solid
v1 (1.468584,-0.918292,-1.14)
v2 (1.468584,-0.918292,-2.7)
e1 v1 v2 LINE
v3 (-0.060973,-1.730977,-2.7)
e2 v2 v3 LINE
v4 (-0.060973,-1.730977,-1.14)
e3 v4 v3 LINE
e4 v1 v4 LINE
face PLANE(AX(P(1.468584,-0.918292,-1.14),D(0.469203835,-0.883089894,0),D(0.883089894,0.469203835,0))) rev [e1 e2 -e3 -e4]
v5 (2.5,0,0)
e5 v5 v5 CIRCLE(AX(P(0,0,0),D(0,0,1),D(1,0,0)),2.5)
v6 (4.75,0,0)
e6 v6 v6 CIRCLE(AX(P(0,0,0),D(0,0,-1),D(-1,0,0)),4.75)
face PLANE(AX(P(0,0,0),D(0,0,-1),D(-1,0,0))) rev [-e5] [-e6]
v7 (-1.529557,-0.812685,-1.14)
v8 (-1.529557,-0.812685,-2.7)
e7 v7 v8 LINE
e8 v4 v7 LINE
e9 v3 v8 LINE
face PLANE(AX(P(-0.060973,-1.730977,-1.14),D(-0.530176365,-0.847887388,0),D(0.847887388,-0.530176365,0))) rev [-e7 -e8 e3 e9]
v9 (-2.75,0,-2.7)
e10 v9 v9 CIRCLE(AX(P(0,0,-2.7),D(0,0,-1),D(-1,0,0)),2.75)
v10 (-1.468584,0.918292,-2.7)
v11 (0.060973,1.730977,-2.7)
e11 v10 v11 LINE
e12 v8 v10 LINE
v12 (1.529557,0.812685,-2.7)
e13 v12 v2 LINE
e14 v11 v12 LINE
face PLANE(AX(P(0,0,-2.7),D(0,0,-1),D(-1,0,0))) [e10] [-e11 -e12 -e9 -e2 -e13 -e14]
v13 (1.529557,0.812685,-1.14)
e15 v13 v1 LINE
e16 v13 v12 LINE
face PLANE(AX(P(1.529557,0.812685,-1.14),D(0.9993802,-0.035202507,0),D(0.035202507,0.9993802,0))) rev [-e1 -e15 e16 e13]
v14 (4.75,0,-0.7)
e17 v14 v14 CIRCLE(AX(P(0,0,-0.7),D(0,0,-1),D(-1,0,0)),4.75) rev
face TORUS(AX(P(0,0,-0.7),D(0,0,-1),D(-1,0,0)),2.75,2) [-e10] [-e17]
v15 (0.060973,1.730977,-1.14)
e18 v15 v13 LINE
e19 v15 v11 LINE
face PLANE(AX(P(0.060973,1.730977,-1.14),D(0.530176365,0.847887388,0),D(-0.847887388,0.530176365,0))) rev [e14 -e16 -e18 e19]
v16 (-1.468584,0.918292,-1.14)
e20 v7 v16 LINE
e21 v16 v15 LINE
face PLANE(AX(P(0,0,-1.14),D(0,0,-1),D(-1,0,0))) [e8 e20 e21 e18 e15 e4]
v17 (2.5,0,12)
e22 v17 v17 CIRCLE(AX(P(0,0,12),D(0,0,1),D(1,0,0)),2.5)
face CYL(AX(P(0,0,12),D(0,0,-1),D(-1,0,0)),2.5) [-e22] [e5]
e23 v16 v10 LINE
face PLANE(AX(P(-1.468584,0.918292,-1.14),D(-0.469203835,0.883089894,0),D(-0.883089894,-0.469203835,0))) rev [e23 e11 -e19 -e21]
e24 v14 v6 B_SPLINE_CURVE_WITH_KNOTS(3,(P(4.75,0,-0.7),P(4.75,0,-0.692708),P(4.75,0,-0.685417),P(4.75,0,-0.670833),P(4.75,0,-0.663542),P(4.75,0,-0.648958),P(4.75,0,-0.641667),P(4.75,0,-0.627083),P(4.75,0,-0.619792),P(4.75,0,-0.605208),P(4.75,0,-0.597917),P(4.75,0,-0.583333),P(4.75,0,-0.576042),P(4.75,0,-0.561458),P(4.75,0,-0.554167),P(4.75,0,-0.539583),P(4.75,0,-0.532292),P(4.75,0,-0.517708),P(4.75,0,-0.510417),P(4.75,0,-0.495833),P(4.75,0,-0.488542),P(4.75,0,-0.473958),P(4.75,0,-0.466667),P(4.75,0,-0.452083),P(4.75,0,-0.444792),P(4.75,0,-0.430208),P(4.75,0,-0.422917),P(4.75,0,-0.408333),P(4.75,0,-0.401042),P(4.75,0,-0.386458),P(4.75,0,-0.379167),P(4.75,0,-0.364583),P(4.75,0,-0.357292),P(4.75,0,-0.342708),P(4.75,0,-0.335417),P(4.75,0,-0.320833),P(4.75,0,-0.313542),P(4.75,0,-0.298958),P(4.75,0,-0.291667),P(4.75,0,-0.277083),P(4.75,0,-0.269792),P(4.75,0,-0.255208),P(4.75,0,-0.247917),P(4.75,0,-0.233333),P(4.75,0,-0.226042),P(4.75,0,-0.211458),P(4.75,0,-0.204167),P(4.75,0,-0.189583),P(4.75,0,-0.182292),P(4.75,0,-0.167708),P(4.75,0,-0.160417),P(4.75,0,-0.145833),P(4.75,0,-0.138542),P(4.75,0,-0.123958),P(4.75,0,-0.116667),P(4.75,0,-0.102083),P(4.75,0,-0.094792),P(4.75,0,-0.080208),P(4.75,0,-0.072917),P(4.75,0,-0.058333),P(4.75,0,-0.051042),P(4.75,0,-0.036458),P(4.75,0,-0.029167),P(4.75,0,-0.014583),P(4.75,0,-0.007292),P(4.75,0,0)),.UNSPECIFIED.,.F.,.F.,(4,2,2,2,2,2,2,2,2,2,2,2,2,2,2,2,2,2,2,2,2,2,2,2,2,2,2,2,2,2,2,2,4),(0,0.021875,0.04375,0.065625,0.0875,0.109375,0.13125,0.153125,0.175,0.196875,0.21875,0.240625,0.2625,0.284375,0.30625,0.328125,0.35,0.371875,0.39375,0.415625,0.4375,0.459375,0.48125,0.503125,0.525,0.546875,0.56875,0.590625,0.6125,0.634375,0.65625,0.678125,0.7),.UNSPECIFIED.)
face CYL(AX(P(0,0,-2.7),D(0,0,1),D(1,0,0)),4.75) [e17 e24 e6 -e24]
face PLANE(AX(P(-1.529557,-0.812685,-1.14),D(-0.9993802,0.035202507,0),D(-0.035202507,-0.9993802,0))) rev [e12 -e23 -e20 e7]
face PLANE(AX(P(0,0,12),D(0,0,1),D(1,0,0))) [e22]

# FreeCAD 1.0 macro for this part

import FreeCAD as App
import Part
import Sketcher
Q = App.Units.Quantity


def edges_at(feature, points):
    """Names of the edges that pass closest to the given points."""
    edges = feature.Shape.Edges
    near = lambda p: min(range(len(edges)), key=lambda i: edges[i].distToShape(Part.Vertex(*p))[0])
    return sorted({f"Edge{near(p) + 1}" for p in points})


def add_polygon(sketch, points):
    """Adds a closed chain of lines whose ends are joined by coincident constraints."""
    first, n = sketch.GeometryCount, len(points)
    for a, b in zip(points, points[1:] + points[:1]):
        sketch.addGeometry(Part.LineSegment(App.Vector(*a, 0), App.Vector(*b, 0)), False)
    for i in range(n):
        sketch.addConstraint(Sketcher.Constraint("Coincident", first + i, 2, first + (i + 1) % n, 1))

doc = App.newDocument("Part")
body = doc.addObject("PartDesign::Body", "Body")

sketch1 = body.newObject("Sketcher::SketchObject", "Sketch")
sketch1.AttachmentSupport = (doc.getObject("XY_Plane"), [""])
sketch1.MapMode = "FlatFace"
sketch1.addGeometry(Part.Circle(App.Vector(0, 0, 0), App.Vector(0, 0, 1), 2.5), False)
sketch1.addConstraint([
    Sketcher.Constraint("Coincident", 0, 3, -1, 1),
    Sketcher.Constraint("Diameter", 0, Q("5 mm")),
])
pad1 = body.newObject("PartDesign::Pad", "Pad")
pad1.Profile = sketch1
pad1.Length = 12

sketch2 = body.newObject("Sketcher::SketchObject", "Sketch001")
sketch2.AttachmentSupport = (doc.getObject("XY_Plane"), [""])
sketch2.MapMode = "FlatFace"
sketch2.addGeometry(Part.Circle(App.Vector(0, 0, 0), App.Vector(0, 0, 1), 4.8), False)
sketch2.addConstraint([
    Sketcher.Constraint("Coincident", 0, 3, -1, 1),
    Sketcher.Constraint("Diameter", 0, Q("9.5 mm")),
])
pad2 = body.newObject("PartDesign::Pad", "Pad001")
pad2.Profile = sketch2
pad2.Length = 2.7
pad2.Reversed = True
doc.recompute()

fillet = body.newObject("PartDesign::Fillet", "Fillet")
fillet.Base = (pad2, edges_at(pad2, [(-4.75, 0, -2.7)]))
fillet.Radius = 2

sketch3 = body.newObject("Sketcher::SketchObject", "Sketch002")
sketch3.AttachmentSupport = (doc.getObject("XY_Plane"), [""])
sketch3.MapMode = "FlatFace"
sketch3.AttachmentOffset = App.Placement(App.Vector(0, 0, -2.7), App.Rotation())
add_polygon(sketch3, [(-1.5, 0.9), (0.1, 1.7), (1.5, 0.8), (1.5, -0.9), (-0.1, -1.7), (-1.5, -0.8)])
sketch3.addConstraint([
    Sketcher.Constraint("Symmetric", 0, 2, 3, 2, -1, 1),
    Sketcher.Constraint("Symmetric", 1, 2, 4, 2, -1, 1),
    Sketcher.Constraint("Symmetric", 2, 2, 5, 2, -1, 1),
    Sketcher.Constraint("Equal", 0, 1),
    Sketcher.Constraint("Equal", 1, 2),
    Sketcher.Constraint("Distance", 0, Q("1.732051 mm")),
    Sketcher.Constraint("DistanceX", 0, 2, 2, 2, Q("1.407612 mm")),
    Sketcher.Constraint("DistanceY", 2, 2, 0, 2, Q("2.64927 mm")),
    Sketcher.Constraint("DistanceX", 3, 2, 1, 2, Q("1.590529 mm")),
])
pocket1 = body.newObject("PartDesign::Pocket", "Pocket")
pocket1.Profile = sketch3
pocket1.Length = 1.56
pocket1.Reversed = True

doc.recompute()
